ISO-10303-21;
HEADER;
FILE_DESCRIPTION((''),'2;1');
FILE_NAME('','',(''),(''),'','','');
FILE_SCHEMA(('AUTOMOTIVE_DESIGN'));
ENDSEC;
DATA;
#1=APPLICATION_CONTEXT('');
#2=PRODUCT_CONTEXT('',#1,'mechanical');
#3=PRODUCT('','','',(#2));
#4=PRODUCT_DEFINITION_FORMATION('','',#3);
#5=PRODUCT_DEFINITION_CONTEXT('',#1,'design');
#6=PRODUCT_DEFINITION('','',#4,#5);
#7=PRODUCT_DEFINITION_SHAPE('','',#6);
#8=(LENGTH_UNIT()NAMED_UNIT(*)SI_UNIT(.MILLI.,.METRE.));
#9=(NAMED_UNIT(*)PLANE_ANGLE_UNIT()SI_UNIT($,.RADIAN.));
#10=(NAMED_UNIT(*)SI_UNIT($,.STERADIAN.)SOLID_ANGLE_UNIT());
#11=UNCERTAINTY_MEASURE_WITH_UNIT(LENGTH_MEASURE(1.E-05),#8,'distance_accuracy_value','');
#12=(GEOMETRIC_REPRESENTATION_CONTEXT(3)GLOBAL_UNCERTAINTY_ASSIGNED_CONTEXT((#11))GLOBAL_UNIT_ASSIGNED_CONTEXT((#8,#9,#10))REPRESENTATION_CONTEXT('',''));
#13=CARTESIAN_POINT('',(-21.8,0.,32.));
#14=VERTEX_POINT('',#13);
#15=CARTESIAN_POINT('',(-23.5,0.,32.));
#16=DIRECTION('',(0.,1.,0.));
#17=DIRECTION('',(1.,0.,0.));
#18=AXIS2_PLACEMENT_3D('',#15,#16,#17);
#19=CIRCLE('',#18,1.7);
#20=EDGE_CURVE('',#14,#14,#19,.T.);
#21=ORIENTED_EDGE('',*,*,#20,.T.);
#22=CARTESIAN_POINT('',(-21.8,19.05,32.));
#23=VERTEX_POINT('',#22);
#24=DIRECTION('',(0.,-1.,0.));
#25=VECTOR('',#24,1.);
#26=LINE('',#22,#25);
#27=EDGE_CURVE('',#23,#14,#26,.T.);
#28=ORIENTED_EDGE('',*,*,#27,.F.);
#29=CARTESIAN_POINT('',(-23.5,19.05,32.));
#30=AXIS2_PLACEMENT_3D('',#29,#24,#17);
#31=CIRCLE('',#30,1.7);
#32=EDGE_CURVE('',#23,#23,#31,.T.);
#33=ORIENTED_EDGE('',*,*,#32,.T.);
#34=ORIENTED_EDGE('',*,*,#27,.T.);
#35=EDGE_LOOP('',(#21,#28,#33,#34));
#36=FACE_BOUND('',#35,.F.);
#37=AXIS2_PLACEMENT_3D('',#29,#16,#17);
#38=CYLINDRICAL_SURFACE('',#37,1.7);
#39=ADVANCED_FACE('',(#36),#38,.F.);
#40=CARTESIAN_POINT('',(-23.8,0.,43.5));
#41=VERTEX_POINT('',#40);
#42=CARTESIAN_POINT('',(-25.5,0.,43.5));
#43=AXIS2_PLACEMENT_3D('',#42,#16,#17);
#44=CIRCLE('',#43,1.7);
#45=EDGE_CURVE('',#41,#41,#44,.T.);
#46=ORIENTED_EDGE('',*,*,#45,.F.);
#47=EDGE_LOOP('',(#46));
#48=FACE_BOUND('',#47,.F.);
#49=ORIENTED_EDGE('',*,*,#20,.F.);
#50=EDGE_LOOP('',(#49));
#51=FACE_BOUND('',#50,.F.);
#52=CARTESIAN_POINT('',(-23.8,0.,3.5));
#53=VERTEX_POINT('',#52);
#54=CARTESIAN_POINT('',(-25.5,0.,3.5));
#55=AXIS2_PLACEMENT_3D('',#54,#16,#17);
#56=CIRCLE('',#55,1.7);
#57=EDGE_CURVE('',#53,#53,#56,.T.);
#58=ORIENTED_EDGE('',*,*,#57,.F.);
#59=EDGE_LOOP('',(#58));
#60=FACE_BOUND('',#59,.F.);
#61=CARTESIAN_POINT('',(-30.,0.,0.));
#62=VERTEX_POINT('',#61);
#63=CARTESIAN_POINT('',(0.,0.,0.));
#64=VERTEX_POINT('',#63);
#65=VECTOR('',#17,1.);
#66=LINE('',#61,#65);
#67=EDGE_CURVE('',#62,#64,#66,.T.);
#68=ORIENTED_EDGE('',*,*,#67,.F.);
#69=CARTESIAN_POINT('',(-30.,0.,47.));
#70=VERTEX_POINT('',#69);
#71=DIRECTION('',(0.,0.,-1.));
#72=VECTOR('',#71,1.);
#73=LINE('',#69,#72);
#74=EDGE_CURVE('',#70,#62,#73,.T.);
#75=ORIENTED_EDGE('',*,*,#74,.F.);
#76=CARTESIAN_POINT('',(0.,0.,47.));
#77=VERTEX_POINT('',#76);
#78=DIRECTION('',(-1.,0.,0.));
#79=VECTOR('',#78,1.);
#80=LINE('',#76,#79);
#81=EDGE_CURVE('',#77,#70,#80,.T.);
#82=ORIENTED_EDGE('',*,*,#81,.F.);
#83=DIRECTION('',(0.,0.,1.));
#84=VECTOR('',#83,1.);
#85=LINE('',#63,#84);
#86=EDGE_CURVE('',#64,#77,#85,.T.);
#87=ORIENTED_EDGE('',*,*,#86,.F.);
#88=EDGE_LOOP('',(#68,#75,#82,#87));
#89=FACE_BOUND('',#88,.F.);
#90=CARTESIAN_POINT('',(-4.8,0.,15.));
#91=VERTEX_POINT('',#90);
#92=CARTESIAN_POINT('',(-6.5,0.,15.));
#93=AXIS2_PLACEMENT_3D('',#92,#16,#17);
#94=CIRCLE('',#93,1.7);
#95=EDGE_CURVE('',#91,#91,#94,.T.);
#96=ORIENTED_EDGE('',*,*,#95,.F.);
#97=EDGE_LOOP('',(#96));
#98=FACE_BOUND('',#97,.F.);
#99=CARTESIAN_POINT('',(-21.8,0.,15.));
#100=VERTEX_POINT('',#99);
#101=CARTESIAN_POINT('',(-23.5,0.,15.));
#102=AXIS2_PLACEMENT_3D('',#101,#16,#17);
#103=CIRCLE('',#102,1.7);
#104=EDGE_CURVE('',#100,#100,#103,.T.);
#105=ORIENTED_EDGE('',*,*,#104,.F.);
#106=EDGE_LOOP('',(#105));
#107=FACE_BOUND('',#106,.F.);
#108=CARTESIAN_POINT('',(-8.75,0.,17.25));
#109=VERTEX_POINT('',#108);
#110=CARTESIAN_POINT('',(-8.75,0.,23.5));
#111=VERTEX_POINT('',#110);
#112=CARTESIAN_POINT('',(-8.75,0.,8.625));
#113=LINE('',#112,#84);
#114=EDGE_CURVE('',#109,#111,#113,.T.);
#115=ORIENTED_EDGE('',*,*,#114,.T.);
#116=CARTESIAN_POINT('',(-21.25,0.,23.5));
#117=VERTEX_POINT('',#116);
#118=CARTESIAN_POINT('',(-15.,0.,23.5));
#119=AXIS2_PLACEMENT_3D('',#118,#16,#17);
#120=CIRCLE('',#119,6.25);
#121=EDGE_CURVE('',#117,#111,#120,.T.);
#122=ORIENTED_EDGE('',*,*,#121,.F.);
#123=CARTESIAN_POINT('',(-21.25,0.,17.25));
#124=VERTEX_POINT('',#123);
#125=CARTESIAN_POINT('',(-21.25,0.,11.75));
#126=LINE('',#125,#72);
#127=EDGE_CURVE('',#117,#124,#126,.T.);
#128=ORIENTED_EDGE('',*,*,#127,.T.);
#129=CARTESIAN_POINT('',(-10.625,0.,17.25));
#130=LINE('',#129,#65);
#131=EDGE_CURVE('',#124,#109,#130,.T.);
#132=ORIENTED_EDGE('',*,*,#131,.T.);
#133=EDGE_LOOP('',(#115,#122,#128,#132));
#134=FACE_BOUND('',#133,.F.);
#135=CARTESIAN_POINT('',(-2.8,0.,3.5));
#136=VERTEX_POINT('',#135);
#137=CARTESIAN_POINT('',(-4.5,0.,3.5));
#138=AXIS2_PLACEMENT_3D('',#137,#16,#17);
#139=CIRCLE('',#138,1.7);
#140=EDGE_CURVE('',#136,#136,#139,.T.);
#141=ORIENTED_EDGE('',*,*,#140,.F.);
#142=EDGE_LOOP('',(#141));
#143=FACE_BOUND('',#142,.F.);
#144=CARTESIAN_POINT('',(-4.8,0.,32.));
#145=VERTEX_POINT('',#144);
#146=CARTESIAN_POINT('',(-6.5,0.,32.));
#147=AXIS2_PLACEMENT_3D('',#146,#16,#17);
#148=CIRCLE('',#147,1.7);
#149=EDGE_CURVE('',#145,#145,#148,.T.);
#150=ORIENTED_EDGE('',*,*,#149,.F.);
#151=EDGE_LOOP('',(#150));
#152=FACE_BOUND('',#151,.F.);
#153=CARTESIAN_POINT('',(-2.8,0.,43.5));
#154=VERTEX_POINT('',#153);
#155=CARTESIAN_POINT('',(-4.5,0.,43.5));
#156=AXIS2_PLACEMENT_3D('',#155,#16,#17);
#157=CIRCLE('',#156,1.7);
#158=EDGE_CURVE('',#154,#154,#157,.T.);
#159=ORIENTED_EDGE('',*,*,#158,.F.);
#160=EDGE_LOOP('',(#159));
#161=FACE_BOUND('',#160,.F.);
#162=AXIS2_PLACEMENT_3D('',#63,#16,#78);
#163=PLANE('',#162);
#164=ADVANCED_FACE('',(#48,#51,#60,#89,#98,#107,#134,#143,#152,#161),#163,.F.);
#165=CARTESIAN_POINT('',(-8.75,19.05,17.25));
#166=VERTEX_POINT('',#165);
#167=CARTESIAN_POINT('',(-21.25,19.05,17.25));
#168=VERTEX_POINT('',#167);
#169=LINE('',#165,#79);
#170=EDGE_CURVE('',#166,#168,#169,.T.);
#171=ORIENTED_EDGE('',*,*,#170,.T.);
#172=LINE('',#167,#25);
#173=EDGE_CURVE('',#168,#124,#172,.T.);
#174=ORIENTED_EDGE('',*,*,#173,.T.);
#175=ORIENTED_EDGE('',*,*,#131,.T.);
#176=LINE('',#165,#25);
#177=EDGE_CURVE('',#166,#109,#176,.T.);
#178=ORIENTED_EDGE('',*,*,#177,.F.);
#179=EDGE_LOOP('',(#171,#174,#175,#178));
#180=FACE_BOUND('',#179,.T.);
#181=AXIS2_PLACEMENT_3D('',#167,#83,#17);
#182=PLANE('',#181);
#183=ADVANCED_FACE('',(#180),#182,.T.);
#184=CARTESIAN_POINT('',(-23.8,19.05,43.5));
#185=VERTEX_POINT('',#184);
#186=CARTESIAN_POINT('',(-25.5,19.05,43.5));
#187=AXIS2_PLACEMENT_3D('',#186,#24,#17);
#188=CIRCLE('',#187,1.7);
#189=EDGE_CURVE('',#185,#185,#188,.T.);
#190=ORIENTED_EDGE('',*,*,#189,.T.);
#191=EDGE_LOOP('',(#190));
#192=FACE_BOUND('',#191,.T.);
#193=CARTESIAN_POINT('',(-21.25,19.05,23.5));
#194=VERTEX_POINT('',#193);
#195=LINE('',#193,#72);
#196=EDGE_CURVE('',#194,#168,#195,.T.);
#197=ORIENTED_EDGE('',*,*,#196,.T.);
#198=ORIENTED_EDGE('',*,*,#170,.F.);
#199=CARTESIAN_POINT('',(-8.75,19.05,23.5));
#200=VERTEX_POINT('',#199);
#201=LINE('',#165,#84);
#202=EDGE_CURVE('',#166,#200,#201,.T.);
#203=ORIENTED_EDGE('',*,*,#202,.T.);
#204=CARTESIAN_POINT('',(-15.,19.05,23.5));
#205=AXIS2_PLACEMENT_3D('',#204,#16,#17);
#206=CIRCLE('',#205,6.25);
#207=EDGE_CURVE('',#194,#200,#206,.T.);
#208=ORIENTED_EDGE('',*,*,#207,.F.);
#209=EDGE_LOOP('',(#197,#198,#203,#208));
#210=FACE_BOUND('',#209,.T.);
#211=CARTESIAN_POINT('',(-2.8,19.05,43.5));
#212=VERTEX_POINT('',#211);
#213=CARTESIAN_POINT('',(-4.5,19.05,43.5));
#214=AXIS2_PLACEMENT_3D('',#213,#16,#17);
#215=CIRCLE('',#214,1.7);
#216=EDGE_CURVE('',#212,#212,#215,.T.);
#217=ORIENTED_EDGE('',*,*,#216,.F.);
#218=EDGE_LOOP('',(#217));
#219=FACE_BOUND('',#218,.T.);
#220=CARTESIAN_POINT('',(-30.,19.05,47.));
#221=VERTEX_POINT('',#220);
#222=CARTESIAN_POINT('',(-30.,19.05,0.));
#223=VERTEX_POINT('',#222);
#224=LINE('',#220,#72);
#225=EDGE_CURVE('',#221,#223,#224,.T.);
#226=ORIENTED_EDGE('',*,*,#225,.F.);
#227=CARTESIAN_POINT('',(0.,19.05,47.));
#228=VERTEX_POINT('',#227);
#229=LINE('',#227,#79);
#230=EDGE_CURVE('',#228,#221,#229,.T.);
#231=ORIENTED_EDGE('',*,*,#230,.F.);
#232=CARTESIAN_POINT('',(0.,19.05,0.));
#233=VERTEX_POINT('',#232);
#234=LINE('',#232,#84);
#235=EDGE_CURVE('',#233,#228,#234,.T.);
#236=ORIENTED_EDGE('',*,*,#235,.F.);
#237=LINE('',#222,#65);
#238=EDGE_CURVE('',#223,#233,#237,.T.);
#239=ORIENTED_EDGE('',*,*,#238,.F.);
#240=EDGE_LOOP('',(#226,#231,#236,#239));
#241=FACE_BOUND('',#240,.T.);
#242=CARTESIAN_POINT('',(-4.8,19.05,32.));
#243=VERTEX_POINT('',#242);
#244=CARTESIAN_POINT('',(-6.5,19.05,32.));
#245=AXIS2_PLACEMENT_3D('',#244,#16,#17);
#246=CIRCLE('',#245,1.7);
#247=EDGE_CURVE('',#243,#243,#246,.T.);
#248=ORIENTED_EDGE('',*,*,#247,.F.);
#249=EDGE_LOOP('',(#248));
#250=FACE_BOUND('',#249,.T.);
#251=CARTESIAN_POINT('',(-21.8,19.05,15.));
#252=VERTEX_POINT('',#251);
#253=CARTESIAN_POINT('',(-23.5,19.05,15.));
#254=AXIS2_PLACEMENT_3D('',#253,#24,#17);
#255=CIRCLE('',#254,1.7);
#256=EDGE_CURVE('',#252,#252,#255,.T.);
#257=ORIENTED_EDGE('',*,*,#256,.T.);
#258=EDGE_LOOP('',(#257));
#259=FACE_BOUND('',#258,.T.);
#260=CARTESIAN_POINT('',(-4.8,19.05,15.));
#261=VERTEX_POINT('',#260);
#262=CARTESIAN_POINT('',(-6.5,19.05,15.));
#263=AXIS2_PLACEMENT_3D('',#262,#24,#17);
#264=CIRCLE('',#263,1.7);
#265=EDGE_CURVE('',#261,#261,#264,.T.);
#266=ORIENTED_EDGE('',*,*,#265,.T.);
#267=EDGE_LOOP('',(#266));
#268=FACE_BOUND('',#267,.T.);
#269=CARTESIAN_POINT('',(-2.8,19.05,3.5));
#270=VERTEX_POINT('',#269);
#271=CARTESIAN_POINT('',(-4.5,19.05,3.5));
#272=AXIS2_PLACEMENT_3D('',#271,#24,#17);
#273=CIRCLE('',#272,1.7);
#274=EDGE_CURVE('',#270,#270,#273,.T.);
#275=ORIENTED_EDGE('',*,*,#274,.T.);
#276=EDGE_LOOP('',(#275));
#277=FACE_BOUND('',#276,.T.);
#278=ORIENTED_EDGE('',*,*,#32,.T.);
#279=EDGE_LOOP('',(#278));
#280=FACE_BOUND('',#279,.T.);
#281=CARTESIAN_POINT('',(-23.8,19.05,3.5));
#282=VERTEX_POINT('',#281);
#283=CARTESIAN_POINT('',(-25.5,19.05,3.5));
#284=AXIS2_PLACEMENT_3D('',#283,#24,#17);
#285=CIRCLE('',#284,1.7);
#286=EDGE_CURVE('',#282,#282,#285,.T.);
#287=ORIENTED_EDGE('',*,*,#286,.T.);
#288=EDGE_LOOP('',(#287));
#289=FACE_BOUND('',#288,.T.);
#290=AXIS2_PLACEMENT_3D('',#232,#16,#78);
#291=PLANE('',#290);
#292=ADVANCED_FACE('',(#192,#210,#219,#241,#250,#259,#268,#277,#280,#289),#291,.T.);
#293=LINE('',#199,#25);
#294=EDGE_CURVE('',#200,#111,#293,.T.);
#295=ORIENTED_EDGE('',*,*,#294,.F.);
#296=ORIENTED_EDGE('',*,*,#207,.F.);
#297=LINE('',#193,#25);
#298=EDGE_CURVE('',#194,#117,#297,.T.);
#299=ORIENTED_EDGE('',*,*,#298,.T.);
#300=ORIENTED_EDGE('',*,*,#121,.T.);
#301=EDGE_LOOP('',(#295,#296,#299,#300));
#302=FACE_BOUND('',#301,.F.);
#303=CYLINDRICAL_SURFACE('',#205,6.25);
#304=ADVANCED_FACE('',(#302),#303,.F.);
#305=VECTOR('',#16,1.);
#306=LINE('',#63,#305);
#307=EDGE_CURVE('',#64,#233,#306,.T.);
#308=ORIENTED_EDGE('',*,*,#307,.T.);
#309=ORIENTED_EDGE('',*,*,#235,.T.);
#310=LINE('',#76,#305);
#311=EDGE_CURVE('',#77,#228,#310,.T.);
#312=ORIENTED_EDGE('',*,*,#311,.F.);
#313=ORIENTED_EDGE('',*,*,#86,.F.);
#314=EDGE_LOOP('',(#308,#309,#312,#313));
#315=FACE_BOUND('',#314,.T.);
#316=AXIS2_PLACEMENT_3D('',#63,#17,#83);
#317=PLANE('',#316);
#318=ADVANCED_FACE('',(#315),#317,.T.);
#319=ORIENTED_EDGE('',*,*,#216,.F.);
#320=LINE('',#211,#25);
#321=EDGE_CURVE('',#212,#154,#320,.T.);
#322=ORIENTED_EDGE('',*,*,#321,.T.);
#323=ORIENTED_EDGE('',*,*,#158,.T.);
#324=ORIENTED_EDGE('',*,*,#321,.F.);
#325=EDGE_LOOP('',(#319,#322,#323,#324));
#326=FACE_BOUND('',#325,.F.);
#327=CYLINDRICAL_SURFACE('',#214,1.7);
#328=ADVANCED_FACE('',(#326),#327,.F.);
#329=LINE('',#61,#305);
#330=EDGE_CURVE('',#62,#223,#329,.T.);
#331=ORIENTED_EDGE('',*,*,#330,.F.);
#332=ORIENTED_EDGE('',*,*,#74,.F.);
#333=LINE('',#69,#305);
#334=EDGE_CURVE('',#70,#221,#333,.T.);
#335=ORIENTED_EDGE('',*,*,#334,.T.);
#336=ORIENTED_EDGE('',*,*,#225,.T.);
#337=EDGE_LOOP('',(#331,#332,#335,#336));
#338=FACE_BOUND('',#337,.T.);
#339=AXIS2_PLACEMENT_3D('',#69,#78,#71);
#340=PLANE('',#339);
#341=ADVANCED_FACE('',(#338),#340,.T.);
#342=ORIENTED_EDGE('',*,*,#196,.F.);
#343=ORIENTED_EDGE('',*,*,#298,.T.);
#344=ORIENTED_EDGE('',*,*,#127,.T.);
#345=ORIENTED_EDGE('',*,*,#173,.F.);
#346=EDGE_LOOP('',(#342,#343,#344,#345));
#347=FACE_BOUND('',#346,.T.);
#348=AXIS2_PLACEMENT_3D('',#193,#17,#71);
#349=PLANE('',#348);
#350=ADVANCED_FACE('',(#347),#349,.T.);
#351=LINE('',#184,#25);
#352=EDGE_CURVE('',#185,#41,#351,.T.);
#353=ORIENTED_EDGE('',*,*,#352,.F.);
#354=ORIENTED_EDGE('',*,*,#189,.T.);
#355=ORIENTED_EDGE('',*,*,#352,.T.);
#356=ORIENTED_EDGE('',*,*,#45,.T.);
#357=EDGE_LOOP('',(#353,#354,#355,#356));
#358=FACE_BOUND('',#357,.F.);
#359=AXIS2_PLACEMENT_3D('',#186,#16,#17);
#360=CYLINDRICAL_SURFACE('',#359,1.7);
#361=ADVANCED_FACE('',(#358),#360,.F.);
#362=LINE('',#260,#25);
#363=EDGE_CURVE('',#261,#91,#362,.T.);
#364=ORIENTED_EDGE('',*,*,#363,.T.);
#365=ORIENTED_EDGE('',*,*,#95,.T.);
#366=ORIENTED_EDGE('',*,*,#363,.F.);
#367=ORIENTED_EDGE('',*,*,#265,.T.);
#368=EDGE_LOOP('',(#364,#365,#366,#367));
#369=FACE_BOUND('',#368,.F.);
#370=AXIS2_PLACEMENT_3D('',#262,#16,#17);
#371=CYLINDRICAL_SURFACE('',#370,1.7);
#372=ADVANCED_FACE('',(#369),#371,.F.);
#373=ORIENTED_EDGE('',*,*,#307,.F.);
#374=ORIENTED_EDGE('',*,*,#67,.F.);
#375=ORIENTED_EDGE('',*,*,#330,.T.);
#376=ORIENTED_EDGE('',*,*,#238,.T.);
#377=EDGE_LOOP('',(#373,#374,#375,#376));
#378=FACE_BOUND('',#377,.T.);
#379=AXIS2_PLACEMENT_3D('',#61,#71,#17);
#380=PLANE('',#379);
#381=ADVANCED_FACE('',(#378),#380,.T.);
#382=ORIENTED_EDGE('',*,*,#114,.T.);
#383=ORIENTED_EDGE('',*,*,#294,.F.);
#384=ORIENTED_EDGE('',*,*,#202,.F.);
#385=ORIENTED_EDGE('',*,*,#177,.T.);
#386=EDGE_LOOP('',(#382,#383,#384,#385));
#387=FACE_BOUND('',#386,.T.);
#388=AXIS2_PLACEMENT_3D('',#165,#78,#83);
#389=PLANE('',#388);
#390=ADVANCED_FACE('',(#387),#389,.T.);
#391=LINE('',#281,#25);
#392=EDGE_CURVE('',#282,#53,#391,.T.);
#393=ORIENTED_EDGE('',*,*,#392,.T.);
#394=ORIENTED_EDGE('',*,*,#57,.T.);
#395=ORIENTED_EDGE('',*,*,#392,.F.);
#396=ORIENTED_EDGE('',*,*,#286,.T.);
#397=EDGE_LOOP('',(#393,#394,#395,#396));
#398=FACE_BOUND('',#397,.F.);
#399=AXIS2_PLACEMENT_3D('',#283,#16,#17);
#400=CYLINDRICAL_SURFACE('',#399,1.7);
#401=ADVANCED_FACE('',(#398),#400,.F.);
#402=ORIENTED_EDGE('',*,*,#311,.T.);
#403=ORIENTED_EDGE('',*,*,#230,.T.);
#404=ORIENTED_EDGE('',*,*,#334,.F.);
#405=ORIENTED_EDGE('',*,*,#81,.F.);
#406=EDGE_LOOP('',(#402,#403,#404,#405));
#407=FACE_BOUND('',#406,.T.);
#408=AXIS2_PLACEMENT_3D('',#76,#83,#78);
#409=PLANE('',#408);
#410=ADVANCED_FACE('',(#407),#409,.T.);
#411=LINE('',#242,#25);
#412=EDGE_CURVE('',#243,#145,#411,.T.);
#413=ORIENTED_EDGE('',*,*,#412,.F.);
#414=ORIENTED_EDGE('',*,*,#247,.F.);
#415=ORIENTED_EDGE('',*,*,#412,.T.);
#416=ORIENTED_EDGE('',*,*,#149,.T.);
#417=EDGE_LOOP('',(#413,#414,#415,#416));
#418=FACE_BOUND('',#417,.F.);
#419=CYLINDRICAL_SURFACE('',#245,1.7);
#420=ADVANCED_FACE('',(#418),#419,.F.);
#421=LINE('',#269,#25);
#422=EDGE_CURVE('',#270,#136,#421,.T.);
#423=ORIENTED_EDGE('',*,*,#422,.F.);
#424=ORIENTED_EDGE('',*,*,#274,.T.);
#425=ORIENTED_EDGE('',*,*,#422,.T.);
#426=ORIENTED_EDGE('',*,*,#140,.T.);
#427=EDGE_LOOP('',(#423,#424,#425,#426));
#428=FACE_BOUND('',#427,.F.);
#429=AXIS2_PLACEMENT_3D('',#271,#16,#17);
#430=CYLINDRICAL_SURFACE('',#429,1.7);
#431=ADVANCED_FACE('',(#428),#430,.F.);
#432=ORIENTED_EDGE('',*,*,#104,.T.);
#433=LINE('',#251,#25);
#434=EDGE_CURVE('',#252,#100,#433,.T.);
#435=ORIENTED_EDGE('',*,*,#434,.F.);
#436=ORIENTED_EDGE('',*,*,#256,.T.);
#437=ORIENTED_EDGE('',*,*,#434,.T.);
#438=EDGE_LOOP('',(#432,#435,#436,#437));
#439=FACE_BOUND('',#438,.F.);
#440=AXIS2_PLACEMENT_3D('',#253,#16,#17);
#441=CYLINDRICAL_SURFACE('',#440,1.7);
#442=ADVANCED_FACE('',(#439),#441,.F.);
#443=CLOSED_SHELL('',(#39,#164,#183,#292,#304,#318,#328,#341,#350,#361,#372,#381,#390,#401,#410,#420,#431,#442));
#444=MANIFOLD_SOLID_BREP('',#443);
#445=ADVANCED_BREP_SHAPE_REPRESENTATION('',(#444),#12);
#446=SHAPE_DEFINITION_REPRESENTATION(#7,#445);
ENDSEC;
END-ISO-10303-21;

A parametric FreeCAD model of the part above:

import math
import FreeCAD as App
import Part
import Sketcher
from FreeCAD import Vector
Q = App.Units.Quantity


def add_polygon(sketch, points):
    """Adds a closed chain of lines whose ends are joined by coincident constraints."""
    first, n = sketch.GeometryCount, len(points)
    for a, b in zip(points, points[1:] + points[:1]):
        sketch.addGeometry(Part.LineSegment(App.Vector(*a, 0), App.Vector(*b, 0)), False)
    for i in range(n):
        sketch.addConstraint(Sketcher.Constraint("Coincident", first + i, 2, first + (i + 1) % n, 1))

doc = App.newDocument("Part")
body = doc.addObject("PartDesign::Body", "Body")

# Sketch on XZ plane
sketch1 = body.newObject("Sketcher::SketchObject", "Sketch")
sketch1.AttachmentSupport = (doc.getObject("XZ_Plane"), [""])
sketch1.MapMode = "FlatFace"
add_polygon(sketch1, [(0, 47), (0, 0), (-30, 0), (-30, 47)])  # lines 0-3
sketch1.addConstraint(Sketcher.Constraint("Vertical", 0))
sketch1.addConstraint(Sketcher.Constraint("Horizontal", 1))
sketch1.addConstraint(Sketcher.Constraint("Vertical", 2))
sketch1.addConstraint(Sketcher.Constraint("Horizontal", 3))
sketch1.addConstraint(Sketcher.Constraint("Coincident", 0, 2, -1, 1))
sketch1.addConstraint(Sketcher.Constraint("DistanceX", 1, 2, 1, 1, Q("30 mm")))
sketch1.addConstraint(Sketcher.Constraint("DistanceY", 0, 2, 0, 1, Q("47 mm")))
pad1 = body.newObject("PartDesign::Pad", "Pad")
pad1.Profile = sketch1
pad1.Length = 19.05
pad1.Reversed = True

# Sketch on XZ plane
sketch2 = body.newObject("Sketcher::SketchObject", "Sketch001")
sketch2.AttachmentSupport = (doc.getObject("XZ_Plane"), [""])
sketch2.MapMode = "FlatFace"
sketch2.AttachmentOffset = App.Placement(Vector(0, 0, -19.05), App.Rotation())
sketch2.addGeometry(Part.Circle(Vector(-25.5, 43.5, 0), Vector(0, 0, 1), 1.7), False)
sketch2.addGeometry(Part.Circle(Vector(-4.5, 3.5, 0), Vector(0, 0, 1), 1.7), False)
sketch2.addGeometry(Part.Circle(Vector(-25.5, 3.5, 0), Vector(0, 0, 1), 1.7), False)
sketch2.addGeometry(Part.Circle(Vector(-4.5, 43.5, 0), Vector(0, 0, 1), 1.7), False)
sketch2.addGeometry(Part.Circle(Vector(-23.5, 32, 0), Vector(0, 0, 1), 1.7), False)
sketch2.addGeometry(Part.Circle(Vector(-6.5, 15, 0), Vector(0, 0, 1), 1.7), False)
sketch2.addGeometry(Part.Circle(Vector(-23.5, 15, 0), Vector(0, 0, 1), 1.7), False)
sketch2.addGeometry(Part.Circle(Vector(-6.5, 32, 0), Vector(0, 0, 1), 1.7), False)
sketch2.addGeometry(Part.ArcOfCircle(Part.Circle(Vector(-15, 23.5, 0), Vector(0, 0, 1), 6.25), math.radians(0), math.radians(180)), False)
sketch2.addGeometry(Part.LineSegment(Vector(-8.75, 23.5, 0), Vector(-8.75, 17.25, 0)), False)
sketch2.addGeometry(Part.LineSegment(Vector(-8.75, 17.25, 0), Vector(-21.25, 17.25, 0)), False)
sketch2.addGeometry(Part.LineSegment(Vector(-21.25, 17.25, 0), Vector(-21.25, 23.5, 0)), False)
sketch2.addConstraint(Sketcher.Constraint("Tangent", 8, 1, 9, 1))
sketch2.addConstraint(Sketcher.Constraint("Coincident", 9, 2, 10, 1))
sketch2.addConstraint(Sketcher.Constraint("Coincident", 10, 2, 11, 1))
sketch2.addConstraint(Sketcher.Constraint("Tangent", 11, 2, 8, 2))
sketch2.addConstraint(Sketcher.Constraint("Vertical", 9))
sketch2.addConstraint(Sketcher.Constraint("Horizontal", 10))
sketch2.addConstraint(Sketcher.Constraint("Vertical", 11))
sketch2.addConstraint(Sketcher.Constraint("Equal", 0, 1))
sketch2.addConstraint(Sketcher.Constraint("Equal", 1, 2))
sketch2.addConstraint(Sketcher.Constraint("Equal", 2, 3))
sketch2.addConstraint(Sketcher.Constraint("Equal", 3, 4))
sketch2.addConstraint(Sketcher.Constraint("Equal", 4, 5))
sketch2.addConstraint(Sketcher.Constraint("Equal", 5, 6))
sketch2.addConstraint(Sketcher.Constraint("Equal", 6, 7))
sketch2.addConstraint(Sketcher.Constraint("Horizontal", 1, 3, 2, 3))
sketch2.addConstraint(Sketcher.Constraint("Horizontal", 0, 3, 3, 3))
sketch2.addConstraint(Sketcher.Constraint("Horizontal", 5, 3, 6, 3))
sketch2.addConstraint(Sketcher.Constraint("Horizontal", 4, 3, 7, 3))
sketch2.addConstraint(Sketcher.Constraint("Vertical", 0, 3, 2, 3))
sketch2.addConstraint(Sketcher.Constraint("Vertical", 1, 3, 3, 3))
sketch2.addConstraint(Sketcher.Constraint("Vertical", 4, 3, 6, 3))
sketch2.addConstraint(Sketcher.Constraint("Vertical", 5, 3, 7, 3))
sketch2.addConstraint(Sketcher.Constraint("Diameter", 0, Q("3.4 mm")))
sketch2.addConstraint(Sketcher.Constraint("Radius", 8, Q("6.25 mm")))
sketch2.addConstraint(Sketcher.Constraint("DistanceX", 0, 3, 1, 3, Q("21 mm")))
sketch2.addConstraint(Sketcher.Constraint("DistanceY", 1, 3, 0, 3, Q("40 mm")))
sketch2.addConstraint(Sketcher.Constraint("DistanceX", 4, 3, 5, 3, Q("17 mm")))
sketch2.addConstraint(Sketcher.Constraint("DistanceY", 5, 3, 4, 3, Q("17 mm")))
sketch2.addConstraint(Sketcher.Constraint("DistanceY", -1, 1, 4, 3, Q("32 mm")))
sketch2.addConstraint(Sketcher.Constraint("DistanceX", 8, 3, -1, 1, Q("15 mm")))
sketch2.addConstraint(Sketcher.Constraint("DistanceX", 0, 3, 4, 3, Q("2 mm")))
sketch2.addConstraint(Sketcher.Constraint("DistanceY", 8, 3, 0, 3, Q("20 mm")))
sketch2.addConstraint(Sketcher.Constraint("DistanceY", 9, 2, 9, 1, Q("6.25 mm")))
sketch2.addConstraint(Sketcher.Constraint("DistanceX", 0, 3, -1, 1, Q("25.5 mm")))
sketch2.addConstraint(Sketcher.Constraint("DistanceY", -1, 1, 0, 3, Q("43.5 mm")))
pocket1 = body.newObject("PartDesign::Pocket", "Pocket")
pocket1.Profile = sketch2
pocket1.Type = "ThroughAll"
pocket1.Reversed = True

doc.recompute()
